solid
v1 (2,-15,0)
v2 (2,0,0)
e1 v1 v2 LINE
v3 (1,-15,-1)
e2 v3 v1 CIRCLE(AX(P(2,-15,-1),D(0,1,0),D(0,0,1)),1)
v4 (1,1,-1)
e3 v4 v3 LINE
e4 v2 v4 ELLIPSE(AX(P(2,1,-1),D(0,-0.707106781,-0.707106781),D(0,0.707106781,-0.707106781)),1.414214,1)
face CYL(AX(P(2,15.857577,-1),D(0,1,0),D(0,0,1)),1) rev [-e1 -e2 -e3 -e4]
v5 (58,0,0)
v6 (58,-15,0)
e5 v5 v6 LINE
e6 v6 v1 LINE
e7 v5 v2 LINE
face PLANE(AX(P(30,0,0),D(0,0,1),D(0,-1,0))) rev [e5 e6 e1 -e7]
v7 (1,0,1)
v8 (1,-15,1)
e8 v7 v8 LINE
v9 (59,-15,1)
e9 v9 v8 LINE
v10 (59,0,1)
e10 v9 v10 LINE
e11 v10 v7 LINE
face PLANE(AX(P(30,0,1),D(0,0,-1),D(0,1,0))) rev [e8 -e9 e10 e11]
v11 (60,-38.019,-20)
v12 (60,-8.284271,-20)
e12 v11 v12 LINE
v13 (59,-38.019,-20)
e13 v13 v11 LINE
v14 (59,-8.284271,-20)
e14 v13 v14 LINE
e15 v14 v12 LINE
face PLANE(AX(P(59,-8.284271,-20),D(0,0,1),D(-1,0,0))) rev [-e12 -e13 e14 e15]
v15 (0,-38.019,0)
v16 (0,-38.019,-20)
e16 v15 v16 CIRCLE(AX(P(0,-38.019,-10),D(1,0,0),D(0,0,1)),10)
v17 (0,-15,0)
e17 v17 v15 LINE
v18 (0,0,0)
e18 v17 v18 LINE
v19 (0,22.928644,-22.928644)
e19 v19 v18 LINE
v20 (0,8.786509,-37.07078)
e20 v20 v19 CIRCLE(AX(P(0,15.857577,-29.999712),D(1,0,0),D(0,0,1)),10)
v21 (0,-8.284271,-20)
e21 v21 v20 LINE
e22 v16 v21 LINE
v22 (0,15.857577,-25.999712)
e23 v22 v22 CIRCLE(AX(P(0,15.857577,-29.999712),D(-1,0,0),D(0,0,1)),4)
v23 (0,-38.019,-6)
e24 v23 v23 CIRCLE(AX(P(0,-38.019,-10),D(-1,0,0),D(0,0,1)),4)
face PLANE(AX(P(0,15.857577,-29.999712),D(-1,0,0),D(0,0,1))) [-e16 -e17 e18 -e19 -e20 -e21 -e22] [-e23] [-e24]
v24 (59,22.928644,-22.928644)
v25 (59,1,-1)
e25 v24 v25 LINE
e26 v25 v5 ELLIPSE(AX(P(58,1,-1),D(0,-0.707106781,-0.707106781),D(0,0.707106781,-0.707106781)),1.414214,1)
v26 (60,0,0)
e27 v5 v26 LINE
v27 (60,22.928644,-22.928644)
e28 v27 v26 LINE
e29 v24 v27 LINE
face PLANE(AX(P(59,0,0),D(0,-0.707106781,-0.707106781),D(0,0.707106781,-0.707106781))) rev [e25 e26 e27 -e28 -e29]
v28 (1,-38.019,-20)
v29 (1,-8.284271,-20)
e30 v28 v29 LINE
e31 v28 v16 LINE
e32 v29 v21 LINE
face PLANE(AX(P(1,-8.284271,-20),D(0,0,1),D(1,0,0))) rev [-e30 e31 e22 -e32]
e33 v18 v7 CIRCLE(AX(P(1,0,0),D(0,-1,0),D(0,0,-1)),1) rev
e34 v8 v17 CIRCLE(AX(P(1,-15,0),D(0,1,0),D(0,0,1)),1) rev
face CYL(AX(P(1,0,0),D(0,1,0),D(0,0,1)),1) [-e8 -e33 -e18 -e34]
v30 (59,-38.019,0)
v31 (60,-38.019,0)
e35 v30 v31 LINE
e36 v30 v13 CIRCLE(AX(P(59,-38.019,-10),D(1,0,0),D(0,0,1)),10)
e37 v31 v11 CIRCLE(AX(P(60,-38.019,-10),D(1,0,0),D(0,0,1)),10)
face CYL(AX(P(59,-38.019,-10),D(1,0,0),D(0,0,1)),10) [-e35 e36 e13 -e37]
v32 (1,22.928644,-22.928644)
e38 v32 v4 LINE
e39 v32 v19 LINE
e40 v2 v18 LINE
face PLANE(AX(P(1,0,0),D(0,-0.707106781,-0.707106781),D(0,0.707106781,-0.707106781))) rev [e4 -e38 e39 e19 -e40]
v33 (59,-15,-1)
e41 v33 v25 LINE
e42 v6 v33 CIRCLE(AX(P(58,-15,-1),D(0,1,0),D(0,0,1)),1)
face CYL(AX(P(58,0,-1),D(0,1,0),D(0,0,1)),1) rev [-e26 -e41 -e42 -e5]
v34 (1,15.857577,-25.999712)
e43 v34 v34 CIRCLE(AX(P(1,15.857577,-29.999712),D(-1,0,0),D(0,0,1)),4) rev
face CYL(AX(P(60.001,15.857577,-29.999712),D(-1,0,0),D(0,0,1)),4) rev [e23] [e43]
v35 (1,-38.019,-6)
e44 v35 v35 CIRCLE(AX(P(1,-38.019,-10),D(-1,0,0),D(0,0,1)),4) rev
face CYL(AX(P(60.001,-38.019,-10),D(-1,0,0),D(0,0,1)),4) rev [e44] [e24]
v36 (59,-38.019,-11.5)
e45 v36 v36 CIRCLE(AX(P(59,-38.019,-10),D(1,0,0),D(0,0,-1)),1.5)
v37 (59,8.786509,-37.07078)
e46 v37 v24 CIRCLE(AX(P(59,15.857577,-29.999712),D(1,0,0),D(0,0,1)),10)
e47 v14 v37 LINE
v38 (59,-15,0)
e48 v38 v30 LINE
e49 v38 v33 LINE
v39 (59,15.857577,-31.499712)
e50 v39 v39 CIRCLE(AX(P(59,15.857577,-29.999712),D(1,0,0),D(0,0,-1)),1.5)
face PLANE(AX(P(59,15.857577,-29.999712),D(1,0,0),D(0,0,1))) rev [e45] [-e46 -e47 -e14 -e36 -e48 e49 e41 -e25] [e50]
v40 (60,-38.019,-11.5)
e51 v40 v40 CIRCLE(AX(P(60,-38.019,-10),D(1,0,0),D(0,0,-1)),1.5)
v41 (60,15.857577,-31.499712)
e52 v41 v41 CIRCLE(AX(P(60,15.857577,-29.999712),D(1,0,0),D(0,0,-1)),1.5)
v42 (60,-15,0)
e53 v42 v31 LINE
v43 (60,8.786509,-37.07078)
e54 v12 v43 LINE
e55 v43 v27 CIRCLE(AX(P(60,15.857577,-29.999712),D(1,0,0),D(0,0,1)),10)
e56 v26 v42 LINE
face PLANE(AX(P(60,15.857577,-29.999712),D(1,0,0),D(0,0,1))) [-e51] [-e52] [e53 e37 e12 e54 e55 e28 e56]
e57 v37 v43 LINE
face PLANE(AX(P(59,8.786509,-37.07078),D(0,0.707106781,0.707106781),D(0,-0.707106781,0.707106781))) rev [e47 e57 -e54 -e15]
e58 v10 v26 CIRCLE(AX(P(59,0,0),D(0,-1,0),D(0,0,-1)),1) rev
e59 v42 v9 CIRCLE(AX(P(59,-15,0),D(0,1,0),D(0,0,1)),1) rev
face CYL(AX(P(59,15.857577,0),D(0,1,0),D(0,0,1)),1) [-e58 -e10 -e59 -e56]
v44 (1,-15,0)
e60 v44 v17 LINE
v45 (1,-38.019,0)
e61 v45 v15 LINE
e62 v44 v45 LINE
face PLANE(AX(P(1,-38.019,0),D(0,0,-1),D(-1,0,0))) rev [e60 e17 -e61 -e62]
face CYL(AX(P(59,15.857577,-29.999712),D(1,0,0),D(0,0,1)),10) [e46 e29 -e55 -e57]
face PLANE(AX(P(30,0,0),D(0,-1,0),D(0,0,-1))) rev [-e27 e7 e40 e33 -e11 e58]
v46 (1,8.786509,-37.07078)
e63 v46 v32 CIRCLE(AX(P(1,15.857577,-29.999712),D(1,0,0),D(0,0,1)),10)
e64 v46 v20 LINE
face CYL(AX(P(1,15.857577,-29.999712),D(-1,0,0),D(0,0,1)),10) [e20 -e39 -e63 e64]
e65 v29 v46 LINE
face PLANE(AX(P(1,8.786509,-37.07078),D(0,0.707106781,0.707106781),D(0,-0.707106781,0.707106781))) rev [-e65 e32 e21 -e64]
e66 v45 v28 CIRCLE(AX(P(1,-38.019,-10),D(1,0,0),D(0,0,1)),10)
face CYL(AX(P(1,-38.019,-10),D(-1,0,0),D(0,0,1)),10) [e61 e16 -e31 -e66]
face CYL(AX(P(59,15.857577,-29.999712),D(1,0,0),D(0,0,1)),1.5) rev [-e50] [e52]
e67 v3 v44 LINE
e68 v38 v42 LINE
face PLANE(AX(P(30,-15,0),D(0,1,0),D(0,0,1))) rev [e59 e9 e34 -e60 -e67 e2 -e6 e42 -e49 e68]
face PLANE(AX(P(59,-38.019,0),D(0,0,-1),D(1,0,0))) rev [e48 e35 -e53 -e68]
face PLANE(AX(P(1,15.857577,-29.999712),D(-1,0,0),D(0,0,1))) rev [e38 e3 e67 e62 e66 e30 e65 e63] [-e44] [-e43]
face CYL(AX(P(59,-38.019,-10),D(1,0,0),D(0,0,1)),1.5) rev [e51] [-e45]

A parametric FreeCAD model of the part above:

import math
import FreeCAD as App
import Part
import Sketcher
Q = App.Units.Quantity


def edges_at(feature, points):
    """Names of the edges that pass closest to the given points."""
    edges = feature.Shape.Edges
    near = lambda p: min(range(len(edges)), key=lambda i: edges[i].distToShape(Part.Vertex(*p))[0])
    return sorted({f"Edge{near(p) + 1}" for p in points})


def add_polygon(sketch, points):
    """Adds a closed chain of lines whose ends are joined by coincident constraints."""
    first, n = sketch.GeometryCount, len(points)
    for a, b in zip(points, points[1:] + points[:1]):
        sketch.addGeometry(Part.LineSegment(App.Vector(*a, 0), App.Vector(*b, 0)), False)
    for i in range(n):
        sketch.addConstraint(Sketcher.Constraint("Coincident", first + i, 2, first + (i + 1) % n, 1))

doc = App.newDocument("Part")
body = doc.addObject("PartDesign::Body", "Body")

# Sketch on YZ plane
sketch1 = doc.addObject("Sketcher::SketchObject", "Sketch")
body.addObject(sketch1)
sketch1.AttachmentSupport = (doc.YZ_Plane, [""])
sketch1.MapMode = "FlatFace"
sketch1.addGeometry(Part.LineSegment(App.Vector(22.9, -22.9, 0), App.Vector(0, 0, 0)), False)
sketch1.addGeometry(Part.LineSegment(App.Vector(0, 0, 0), App.Vector(-38, 0, 0)), False)
sketch1.addGeometry(Part.ArcOfCircle(Part.Circle(App.Vector(-38, -10, 0), App.Vector(0, 0, 1), 10), math.radians(90), math.radians(270)), False)
sketch1.addGeometry(Part.LineSegment(App.Vector(-38, -20, 0), App.Vector(-8.3, -20, 0)), False)
sketch1.addGeometry(Part.LineSegment(App.Vector(-8.3, -20, 0), App.Vector(8.8, -37.1, 0)), False)
sketch1.addGeometry(Part.ArcOfCircle(Part.Circle(App.Vector(15.9, -30, 0), App.Vector(0, 0, 1), 10), math.radians(-135), math.radians(45)), False)
sketch1.addGeometry(Part.Circle(App.Vector(-38, -10, 0), App.Vector(0, 0, 1), 1.5), False)
sketch1.addGeometry(Part.Circle(App.Vector(15.9, -30, 0), App.Vector(0, 0, 1), 1.5), False)
sketch1.addConstraint(Sketcher.Constraint("Coincident", 0, 2, 1, 1))
sketch1.addConstraint(Sketcher.Constraint("Tangent", 1, 2, 2, 1))
sketch1.addConstraint(Sketcher.Constraint("Tangent", 2, 2, 3, 1))
sketch1.addConstraint(Sketcher.Constraint("Coincident", 3, 2, 4, 1))
sketch1.addConstraint(Sketcher.Constraint("Tangent", 4, 2, 5, 1))
sketch1.addConstraint(Sketcher.Constraint("Tangent", 5, 2, 0, 1))
sketch1.addConstraint(Sketcher.Constraint("Horizontal", 1))
sketch1.addConstraint(Sketcher.Constraint("Horizontal", 3))
sketch1.addConstraint(Sketcher.Constraint("Coincident", 0, 2, -1, 1))
sketch1.addConstraint(Sketcher.Constraint("Coincident", 6, 3, 2, 3))
sketch1.addConstraint(Sketcher.Constraint("Coincident", 7, 3, 5, 3))
sketch1.addConstraint(Sketcher.Constraint("Equal", 2, 5))
sketch1.addConstraint(Sketcher.Constraint("Equal", 6, 7))
sketch1.addConstraint(Sketcher.Constraint("Parallel", 0, 4))
sketch1.addConstraint(Sketcher.Constraint("Diameter", 6, Q("3 mm")))
sketch1.addConstraint(Sketcher.Constraint("Radius", 2, Q("10 mm")))
sketch1.addConstraint(Sketcher.Constraint("Angle", 0, Q("135 deg")))
sketch1.addConstraint(Sketcher.Constraint("DistanceX", 1, 2, 1, 1, Q("38.019 mm")))
sketch1.addConstraint(Sketcher.Constraint("Distance", 0, Q("32.426 mm")))
pad1 = doc.addObject("PartDesign::Pad", "Pad")
body.addObject(pad1)
pad1.Profile = sketch1
pad1.Length = 1

# Sketch on YZ plane
sketch2 = doc.addObject("Sketcher::SketchObject", "Sketch001")
body.addObject(sketch2)
sketch2.AttachmentSupport = (doc.YZ_Plane, [""])
sketch2.MapMode = "FlatFace"
add_polygon(sketch2, [(0, 1), (-15, 1), (-15, 0), (0, 0)])  # lines 0-3
sketch2.addConstraint(Sketcher.Constraint("Horizontal", 0))
sketch2.addConstraint(Sketcher.Constraint("Vertical", 1))
sketch2.addConstraint(Sketcher.Constraint("Horizontal", 2))
sketch2.addConstraint(Sketcher.Constraint("Vertical", 3))
sketch2.addConstraint(Sketcher.Constraint("Coincident", 2, 2, -1, 1))
sketch2.addConstraint(Sketcher.Constraint("DistanceX", 0, 2, 0, 1, Q("15 mm")))
sketch2.addConstraint(Sketcher.Constraint("DistanceY", 1, 2, 1, 1, Q("1 mm")))
pad2 = doc.addObject("PartDesign::Pad", "Pad001")
body.addObject(pad2)
pad2.Profile = sketch2
pad2.Length = 30
doc.recompute()

datumplane = doc.addObject("PartDesign::Plane", "DatumPlane")
body.addObject(datumplane)
datumplane.AttachmentSupport = (doc.YZ_Plane, [""])
datumplane.MapMode = "FlatFace"
datumplane.AttachmentOffset = App.Placement(App.Vector(0, 0, 30), App.Rotation())
mirrored = doc.addObject("PartDesign::Mirrored", "Mirrored")
body.addObject(mirrored)
mirrored.Originals = [pad1, pad2]
mirrored.MirrorPlane = (datumplane, [""])
body.Tip = mirrored
doc.recompute()

fillet = doc.addObject("PartDesign::Fillet", "Fillet")
body.addObject(fillet)
fillet.Base = (mirrored, edges_at(mirrored, [
    (1, -7.5, 0),
    (59, -7.5, 0),
    (0, -7.5, 1),
    (60, -7.5, 1),
]))
fillet.Radius = 1

# Sketch on YZ plane
sketch3 = doc.addObject("Sketcher::SketchObject", "Sketch002")
body.addObject(sketch3)
sketch3.AttachmentSupport = (doc.YZ_Plane, [""])
sketch3.MapMode = "FlatFace"
sketch3.addGeometry(Part.Circle(App.Vector(15.9, -30, 0), App.Vector(0, 0, 1), 4), False)
sketch3.addConstraint(Sketcher.Constraint("Diameter", 0, Q("8 mm")))
sketch3.addConstraint(Sketcher.Constraint("DistanceX", -1, 1, 0, 3, Q("15.857577 mm")))
sketch3.addConstraint(Sketcher.Constraint("DistanceY", 0, 3, -1, 1, Q("29.999712 mm")))
pocket1 = doc.addObject("PartDesign::Pocket", "Pocket")
body.addObject(pocket1)
pocket1.Profile = sketch3
pocket1.Length = 1
pocket1.Reversed = True

# Sketch on YZ plane
sketch4 = doc.addObject("Sketcher::SketchObject", "Sketch003")
body.addObject(sketch4)
sketch4.AttachmentSupport = (doc.YZ_Plane, [""])
sketch4.MapMode = "FlatFace"
sketch4.addGeometry(Part.Circle(App.Vector(-38, -10, 0), App.Vector(0, 0, 1), 4), False)
sketch4.addConstraint(Sketcher.Constraint("Diameter", 0, Q("8 mm")))
sketch4.addConstraint(Sketcher.Constraint("DistanceY", 0, 3, -1, 1, Q("10 mm")))
sketch4.addConstraint(Sketcher.Constraint("DistanceX", 0, 3, -1, 1, Q("38.019 mm")))
pocket2 = doc.addObject("PartDesign::Pocket", "Pocket001")
body.addObject(pocket2)
pocket2.Profile = sketch4
pocket2.Length = 1
pocket2.Reversed = True

doc.recompute()
